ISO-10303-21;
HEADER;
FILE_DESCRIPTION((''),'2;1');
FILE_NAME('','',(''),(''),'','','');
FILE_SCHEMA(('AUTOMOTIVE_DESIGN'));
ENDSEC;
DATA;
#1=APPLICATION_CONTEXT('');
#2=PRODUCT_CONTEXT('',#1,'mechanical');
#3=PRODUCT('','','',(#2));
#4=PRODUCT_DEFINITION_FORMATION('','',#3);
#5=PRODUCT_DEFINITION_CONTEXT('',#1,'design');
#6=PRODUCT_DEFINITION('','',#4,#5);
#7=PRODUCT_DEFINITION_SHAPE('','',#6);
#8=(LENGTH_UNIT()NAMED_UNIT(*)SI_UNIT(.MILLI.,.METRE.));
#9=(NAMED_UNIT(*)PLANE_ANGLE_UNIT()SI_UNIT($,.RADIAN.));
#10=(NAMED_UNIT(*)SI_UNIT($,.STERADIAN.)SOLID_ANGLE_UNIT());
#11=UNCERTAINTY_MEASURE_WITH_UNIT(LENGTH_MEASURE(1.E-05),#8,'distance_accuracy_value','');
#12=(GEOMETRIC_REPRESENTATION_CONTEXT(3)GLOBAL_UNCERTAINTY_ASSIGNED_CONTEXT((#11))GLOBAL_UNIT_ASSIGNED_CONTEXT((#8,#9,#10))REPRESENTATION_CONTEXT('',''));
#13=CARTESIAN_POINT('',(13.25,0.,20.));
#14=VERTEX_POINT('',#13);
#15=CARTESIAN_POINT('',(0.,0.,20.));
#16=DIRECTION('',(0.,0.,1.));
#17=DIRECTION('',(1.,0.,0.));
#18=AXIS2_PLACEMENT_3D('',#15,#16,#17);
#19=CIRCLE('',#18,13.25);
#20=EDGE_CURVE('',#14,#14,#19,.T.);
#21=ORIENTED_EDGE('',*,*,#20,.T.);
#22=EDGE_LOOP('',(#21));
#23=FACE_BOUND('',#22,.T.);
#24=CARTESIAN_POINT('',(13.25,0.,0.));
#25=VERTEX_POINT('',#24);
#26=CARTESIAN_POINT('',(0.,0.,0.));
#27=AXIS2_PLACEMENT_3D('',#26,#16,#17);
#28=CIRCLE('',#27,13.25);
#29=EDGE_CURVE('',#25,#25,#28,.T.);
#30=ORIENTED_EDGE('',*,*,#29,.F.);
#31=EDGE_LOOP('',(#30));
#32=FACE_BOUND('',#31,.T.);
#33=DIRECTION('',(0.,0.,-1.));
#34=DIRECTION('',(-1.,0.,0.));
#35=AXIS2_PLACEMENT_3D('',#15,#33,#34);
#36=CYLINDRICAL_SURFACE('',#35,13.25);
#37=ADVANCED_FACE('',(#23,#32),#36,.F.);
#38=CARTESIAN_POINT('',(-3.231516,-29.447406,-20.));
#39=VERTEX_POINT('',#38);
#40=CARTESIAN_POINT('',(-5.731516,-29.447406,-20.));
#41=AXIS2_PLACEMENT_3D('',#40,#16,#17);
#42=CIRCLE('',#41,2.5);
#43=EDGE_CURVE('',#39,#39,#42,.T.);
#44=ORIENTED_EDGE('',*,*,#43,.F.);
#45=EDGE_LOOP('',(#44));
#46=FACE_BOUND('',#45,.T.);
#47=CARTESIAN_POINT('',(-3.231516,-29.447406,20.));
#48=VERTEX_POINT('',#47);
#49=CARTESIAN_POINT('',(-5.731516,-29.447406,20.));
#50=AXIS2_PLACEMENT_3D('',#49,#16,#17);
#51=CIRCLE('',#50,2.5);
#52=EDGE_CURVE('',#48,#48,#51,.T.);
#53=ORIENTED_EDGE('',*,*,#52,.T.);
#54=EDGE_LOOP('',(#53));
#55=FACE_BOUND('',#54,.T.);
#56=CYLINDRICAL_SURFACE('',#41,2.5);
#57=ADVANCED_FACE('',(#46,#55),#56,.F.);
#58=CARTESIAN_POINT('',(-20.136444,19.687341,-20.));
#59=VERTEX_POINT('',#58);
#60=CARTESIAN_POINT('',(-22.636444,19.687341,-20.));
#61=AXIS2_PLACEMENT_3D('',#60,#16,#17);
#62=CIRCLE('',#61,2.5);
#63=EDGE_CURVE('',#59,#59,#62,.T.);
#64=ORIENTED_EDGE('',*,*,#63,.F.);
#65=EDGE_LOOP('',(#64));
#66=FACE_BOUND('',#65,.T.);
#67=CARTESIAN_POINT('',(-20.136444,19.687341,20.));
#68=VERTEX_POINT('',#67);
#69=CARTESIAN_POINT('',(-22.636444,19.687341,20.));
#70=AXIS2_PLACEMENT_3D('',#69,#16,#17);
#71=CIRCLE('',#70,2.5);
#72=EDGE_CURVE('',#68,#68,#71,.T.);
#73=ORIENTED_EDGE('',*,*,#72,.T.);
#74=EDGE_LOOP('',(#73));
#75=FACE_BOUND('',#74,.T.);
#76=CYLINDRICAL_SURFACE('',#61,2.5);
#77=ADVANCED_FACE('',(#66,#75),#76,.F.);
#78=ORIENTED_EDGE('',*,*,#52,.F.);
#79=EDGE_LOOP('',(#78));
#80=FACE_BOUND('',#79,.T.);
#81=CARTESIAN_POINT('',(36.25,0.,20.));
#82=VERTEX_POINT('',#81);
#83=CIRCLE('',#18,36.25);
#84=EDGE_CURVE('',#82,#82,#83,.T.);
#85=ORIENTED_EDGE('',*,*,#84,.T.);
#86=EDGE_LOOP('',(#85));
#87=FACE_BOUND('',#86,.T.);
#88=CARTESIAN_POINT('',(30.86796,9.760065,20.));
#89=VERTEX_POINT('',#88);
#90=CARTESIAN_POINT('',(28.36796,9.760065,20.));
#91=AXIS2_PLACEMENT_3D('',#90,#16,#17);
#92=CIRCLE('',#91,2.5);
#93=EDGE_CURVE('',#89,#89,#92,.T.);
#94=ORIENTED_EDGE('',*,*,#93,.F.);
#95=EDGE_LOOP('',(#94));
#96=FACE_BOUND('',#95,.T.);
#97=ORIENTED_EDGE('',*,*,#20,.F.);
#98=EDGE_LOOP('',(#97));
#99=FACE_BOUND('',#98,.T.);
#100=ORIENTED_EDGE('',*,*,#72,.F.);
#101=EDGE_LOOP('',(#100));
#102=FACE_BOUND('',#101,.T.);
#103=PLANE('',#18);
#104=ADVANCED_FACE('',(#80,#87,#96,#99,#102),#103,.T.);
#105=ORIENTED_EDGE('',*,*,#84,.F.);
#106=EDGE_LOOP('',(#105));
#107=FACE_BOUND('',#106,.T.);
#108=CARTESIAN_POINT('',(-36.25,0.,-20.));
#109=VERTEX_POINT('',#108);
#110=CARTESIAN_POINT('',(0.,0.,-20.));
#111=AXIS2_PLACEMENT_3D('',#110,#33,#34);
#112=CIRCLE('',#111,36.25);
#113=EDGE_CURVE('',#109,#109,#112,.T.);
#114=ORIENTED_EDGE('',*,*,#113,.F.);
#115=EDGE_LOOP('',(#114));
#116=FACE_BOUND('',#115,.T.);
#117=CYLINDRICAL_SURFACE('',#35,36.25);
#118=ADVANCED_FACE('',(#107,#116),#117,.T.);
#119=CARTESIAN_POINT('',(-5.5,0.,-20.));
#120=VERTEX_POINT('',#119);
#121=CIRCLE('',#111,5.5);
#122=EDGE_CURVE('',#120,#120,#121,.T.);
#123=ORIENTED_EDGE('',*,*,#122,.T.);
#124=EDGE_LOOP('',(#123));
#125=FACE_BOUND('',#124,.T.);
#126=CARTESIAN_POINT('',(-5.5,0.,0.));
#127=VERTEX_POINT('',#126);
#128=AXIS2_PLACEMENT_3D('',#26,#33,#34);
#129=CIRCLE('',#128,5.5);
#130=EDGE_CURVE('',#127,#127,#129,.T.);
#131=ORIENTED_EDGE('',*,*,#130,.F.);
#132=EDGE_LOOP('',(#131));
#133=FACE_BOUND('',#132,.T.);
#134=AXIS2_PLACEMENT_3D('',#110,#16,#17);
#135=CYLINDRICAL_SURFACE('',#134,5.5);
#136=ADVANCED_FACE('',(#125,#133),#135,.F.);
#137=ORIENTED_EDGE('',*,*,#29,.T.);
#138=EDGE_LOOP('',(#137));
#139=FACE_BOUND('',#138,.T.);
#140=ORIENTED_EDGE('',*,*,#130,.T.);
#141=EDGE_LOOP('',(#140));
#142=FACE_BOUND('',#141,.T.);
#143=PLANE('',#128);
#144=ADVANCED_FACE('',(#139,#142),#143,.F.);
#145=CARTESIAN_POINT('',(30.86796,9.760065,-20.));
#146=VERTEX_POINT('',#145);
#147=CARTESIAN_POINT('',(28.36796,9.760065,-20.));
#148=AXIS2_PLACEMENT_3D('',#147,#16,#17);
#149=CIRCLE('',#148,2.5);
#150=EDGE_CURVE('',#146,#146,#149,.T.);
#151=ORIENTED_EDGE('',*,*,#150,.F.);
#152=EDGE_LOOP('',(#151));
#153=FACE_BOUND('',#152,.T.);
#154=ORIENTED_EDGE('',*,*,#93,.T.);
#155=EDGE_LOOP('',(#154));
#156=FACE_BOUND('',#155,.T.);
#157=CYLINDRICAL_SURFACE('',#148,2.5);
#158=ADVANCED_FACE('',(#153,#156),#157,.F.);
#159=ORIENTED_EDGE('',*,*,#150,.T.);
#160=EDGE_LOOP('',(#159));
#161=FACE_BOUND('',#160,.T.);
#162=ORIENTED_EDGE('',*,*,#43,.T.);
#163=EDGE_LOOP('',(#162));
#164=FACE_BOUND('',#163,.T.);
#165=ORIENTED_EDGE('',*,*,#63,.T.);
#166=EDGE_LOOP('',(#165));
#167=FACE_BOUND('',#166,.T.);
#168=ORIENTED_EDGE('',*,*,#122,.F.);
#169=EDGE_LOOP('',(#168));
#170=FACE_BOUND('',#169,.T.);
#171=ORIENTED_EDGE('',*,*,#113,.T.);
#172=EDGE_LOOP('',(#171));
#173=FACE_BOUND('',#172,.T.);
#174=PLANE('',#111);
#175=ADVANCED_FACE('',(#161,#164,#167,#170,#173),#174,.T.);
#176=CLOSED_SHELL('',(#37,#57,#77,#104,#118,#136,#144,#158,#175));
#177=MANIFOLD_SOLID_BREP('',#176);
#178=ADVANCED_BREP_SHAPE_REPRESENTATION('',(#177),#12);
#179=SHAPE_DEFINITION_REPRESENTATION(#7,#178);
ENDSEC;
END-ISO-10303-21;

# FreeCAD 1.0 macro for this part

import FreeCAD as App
import Part
import Sketcher

V = App.Vector

doc = App.newDocument("Part")
body = doc.addObject("PartDesign::Body", "Body")

sketch1 = body.newObject("Sketcher::SketchObject", "Sketch")
sketch1.AttachmentSupport = (doc.getObject("XY_Plane"), [""])
sketch1.MapMode = "FlatFace"
sketch1.addGeometry([
    Part.Circle(V(0, 0, 0), V(0, 0, 1), 36.25),
    Part.Circle(V(0, 0, 0), V(0, 0, 1), 13.25),
], False)
sketch1.addConstraint([
    Sketcher.Constraint("Coincident", 0, 3, -1, 1),
    Sketcher.Constraint("Coincident", 1, 3, -1, 1),
    Sketcher.Constraint("Diameter", 0, 72.5),
    Sketcher.Constraint("Diameter", 1, 26.5),
])
pad1 = body.newObject("PartDesign::Pad", "Pad")
pad1.Profile = sketch1
pad1.Length = 20

sketch2 = body.newObject("Sketcher::SketchObject", "Sketch001")
sketch2.AttachmentSupport = (doc.getObject("XY_Plane"), [""])
sketch2.MapMode = "FlatFace"
sketch2.AttachmentOffset = App.Placement(V(0, 0, -20), App.Rotation())
sketch2.addGeometry([
    Part.Circle(V(0, 0, 0), V(0, 0, 1), 36.25),
    Part.Circle(V(0, 0, 0), V(0, 0, 1), 5.5),
], False)
sketch2.addConstraint([
    Sketcher.Constraint("Coincident", 0, 3, -1, 1),
    Sketcher.Constraint("Coincident", 1, 3, -1, 1),
    Sketcher.Constraint("Diameter", 1, 11.0),
    Sketcher.Constraint("Diameter", 0, 72.5),
])
pad2 = body.newObject("PartDesign::Pad", "Pad001")
pad2.Profile = sketch2
pad2.Length = 20

sketch3 = body.newObject("Sketcher::SketchObject", "Sketch002")
sketch3.AttachmentSupport = (doc.getObject("XY_Plane"), [""])
sketch3.MapMode = "FlatFace"
sketch3.AttachmentOffset = App.Placement(V(0, 0, 20), App.Rotation())
sketch3.addGeometry([
    Part.Circle(V(-5.731516, -29.447406, 0), V(0, 0, 1), 2.5),
    Part.Circle(V(-22.636444, 19.687341, 0), V(0, 0, 1), 2.5),
    Part.Circle(V(28.36796, 9.760065, 0), V(0, 0, 1), 2.5),
], False)
sketch3.addConstraint([
    Sketcher.Constraint("Equal", 0, 1),
    Sketcher.Constraint("Equal", 1, 2),
    Sketcher.Constraint("Diameter", 0, 5.0),
    Sketcher.Constraint("DistanceY", -1, 1, 1, 3, 19.687341),
    Sketcher.Constraint("DistanceX", -1, 1, 2, 3, 28.36796),
    Sketcher.Constraint("DistanceX", 1, 3, 0, 3, 16.904928),
    Sketcher.Constraint("DistanceY", 0, 3, 2, 3, 39.207471),
    Sketcher.Constraint("DistanceX", 0, 3, -1, 1, 5.731516),
    Sketcher.Constraint("DistanceY", 0, 3, -1, 1, 29.447406),
])
pocket1 = body.newObject("PartDesign::Pocket", "Pocket")
pocket1.Profile = sketch3
pocket1.Type = "ThroughAll"

doc.recompute()
